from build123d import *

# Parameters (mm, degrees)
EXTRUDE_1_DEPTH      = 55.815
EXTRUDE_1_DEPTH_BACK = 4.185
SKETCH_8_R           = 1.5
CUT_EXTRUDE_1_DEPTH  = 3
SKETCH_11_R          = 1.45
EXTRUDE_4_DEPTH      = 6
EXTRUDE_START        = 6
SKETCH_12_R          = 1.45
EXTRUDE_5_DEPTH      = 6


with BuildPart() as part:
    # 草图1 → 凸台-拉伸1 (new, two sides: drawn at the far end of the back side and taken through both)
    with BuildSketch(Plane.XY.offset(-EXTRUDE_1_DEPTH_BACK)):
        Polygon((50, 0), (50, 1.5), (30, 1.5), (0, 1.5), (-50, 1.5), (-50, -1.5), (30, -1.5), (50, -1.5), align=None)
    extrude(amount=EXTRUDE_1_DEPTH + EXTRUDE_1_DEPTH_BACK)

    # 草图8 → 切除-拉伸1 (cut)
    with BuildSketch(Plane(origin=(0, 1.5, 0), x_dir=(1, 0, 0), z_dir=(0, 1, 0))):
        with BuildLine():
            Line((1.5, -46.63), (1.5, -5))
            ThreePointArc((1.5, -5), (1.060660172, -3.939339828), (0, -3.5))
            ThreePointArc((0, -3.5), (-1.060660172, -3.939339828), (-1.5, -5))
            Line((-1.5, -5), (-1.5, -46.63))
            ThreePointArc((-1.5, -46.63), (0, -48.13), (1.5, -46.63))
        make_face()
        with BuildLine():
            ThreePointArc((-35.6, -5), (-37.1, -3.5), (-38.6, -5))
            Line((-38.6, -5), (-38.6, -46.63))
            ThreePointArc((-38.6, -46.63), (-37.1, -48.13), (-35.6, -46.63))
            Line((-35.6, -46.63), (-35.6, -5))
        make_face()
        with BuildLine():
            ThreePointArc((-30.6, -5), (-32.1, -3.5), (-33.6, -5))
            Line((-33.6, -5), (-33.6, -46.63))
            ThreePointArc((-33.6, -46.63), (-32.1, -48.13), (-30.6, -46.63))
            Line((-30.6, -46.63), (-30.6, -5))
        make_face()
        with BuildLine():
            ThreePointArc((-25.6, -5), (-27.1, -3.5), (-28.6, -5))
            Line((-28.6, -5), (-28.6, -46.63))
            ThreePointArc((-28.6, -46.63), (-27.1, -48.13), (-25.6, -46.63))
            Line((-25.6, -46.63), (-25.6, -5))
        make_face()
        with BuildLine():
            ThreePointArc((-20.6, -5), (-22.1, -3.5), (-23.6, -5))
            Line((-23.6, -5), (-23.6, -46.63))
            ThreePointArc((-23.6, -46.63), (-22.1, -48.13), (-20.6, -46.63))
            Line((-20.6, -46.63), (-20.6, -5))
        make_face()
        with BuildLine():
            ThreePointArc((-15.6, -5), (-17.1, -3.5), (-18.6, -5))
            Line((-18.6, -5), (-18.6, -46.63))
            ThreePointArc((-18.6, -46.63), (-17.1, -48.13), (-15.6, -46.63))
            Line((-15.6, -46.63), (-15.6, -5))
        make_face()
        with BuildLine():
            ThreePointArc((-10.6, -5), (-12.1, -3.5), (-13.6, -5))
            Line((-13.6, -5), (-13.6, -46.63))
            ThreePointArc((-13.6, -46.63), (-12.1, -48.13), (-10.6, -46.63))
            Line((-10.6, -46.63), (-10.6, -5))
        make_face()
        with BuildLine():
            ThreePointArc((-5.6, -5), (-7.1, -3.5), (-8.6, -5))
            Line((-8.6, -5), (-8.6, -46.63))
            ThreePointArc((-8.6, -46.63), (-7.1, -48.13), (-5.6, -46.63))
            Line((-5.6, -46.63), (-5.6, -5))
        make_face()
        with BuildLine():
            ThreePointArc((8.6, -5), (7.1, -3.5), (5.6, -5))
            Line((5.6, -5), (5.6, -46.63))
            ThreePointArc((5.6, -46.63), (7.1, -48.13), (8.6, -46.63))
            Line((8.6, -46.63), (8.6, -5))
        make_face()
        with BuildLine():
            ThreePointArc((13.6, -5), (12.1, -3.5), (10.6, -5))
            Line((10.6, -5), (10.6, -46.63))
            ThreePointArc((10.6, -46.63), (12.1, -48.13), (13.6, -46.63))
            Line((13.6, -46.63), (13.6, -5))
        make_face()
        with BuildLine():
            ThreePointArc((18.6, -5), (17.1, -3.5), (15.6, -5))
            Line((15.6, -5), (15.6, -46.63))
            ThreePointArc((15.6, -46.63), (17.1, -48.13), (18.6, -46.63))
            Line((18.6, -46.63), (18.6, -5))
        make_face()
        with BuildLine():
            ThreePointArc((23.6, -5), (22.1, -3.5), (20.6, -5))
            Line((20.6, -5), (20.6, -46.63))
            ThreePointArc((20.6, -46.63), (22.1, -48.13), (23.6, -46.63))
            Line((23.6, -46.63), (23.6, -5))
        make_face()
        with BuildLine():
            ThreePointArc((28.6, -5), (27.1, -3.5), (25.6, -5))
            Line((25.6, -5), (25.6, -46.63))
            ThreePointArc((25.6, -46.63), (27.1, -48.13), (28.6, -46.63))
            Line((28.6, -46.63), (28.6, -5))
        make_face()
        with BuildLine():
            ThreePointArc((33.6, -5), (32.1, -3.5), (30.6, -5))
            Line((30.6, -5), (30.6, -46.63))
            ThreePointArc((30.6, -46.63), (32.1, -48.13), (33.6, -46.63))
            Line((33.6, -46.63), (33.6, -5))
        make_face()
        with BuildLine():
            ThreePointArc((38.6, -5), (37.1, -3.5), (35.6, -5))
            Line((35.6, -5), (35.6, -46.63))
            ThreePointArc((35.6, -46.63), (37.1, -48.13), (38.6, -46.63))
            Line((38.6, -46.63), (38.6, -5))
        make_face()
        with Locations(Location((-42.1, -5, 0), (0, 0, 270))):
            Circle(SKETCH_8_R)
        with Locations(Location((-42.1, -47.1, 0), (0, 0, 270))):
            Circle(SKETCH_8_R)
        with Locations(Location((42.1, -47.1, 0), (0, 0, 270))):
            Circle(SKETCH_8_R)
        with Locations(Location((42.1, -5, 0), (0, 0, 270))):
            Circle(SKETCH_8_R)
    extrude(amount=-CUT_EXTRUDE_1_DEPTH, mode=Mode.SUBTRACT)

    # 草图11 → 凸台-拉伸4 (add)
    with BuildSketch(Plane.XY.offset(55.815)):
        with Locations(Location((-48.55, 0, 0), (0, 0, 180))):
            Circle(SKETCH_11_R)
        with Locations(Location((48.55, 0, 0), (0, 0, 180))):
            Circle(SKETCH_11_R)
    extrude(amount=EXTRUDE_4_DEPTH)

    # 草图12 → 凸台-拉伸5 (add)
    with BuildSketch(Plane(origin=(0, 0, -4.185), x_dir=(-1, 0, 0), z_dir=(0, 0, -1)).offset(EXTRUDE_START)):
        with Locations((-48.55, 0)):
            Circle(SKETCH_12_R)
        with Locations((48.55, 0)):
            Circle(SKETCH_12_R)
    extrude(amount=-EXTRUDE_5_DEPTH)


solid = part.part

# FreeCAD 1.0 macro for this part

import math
import FreeCAD as App
import Part
import Sketcher
from FreeCAD import Vector
Q = App.Units.Quantity

doc = App.newDocument("Part")
body = doc.addObject("PartDesign::Body", "Body")

# Sketch on XY plane
sketch1 = body.newObject("Sketcher::SketchObject", "Sketch")
sketch1.AttachmentSupport = (doc.getObject("XY_Plane"), [""])
sketch1.MapMode = "FlatFace"
sketch1.addGeometry([
    Part.LineSegment(Vector(50, 1.5, 0), Vector(-50, 1.5, 0)),
    Part.LineSegment(Vector(-50, 1.5, 0), Vector(-50, -1.5, 0)),
    Part.LineSegment(Vector(-50, -1.5, 0), Vector(50, -1.5, 0)),
    Part.LineSegment(Vector(50, -1.5, 0), Vector(50, 1.5, 0)),
], False)
sketch1.addConstraint([
    Sketcher.Constraint("Coincident", 0, 2, 1, 1),
    Sketcher.Constraint("Coincident", 1, 2, 2, 1),
    Sketcher.Constraint("Coincident", 2, 2, 3, 1),
    Sketcher.Constraint("Coincident", 3, 2, 0, 1),
    Sketcher.Constraint("Horizontal", 0),
    Sketcher.Constraint("Vertical", 1),
    Sketcher.Constraint("Horizontal", 2),
    Sketcher.Constraint("Vertical", 3),
    Sketcher.Constraint("Symmetric", 0, 2, 2, 2, -1, 1),
    Sketcher.Constraint("DistanceX", 0, 2, 0, 1, Q("100 mm")),
    Sketcher.Constraint("DistanceY", 1, 2, 1, 1, Q("3 mm")),
])
pad1 = body.newObject("PartDesign::Pad", "Pad")
pad1.Profile = sketch1
pad1.Type = "TwoLengths"
pad1.Length = 55.815
pad1.Length2 = 4.185

# Sketch on XZ plane
sketch2 = body.newObject("Sketcher::SketchObject", "Sketch001")
sketch2.AttachmentSupport = (doc.getObject("XZ_Plane"), [""])
sketch2.MapMode = "FlatFace"
sketch2.AttachmentOffset = App.Placement(Vector(0, 0, -1.5), App.Rotation())
sketch2.addGeometry([
    Part.LineSegment(Vector(1.5, 46.6, 0), Vector(1.5, 5, 0)),  # 0
    Part.ArcOfCircle(Part.Circle(Vector(0, 5, 0), Vector(0, 0, 1), 1.5), math.radians(-90), math.radians(0)),  # 1
    Part.ArcOfCircle(Part.Circle(Vector(0, 5, 0), Vector(0, 0, 1), 1.5), math.radians(180), math.radians(270)),  # 2
    Part.LineSegment(Vector(-1.5, 5, 0), Vector(-1.5, 46.6, 0)),  # 3
    Part.ArcOfCircle(Part.Circle(Vector(0, 46.6, 0), Vector(0, 0, 1), 1.5), math.radians(0), math.radians(180)),  # 4
    Part.ArcOfCircle(Part.Circle(Vector(-37.1, 5, 0), Vector(0, 0, 1), 1.5), math.radians(180), math.radians(360)),  # 5
    Part.LineSegment(Vector(-38.6, 5, 0), Vector(-38.6, 46.6, 0)),  # 6
    Part.ArcOfCircle(Part.Circle(Vector(-37.1, 46.6, 0), Vector(0, 0, 1), 1.5), math.radians(0), math.radians(180)),  # 7
    Part.LineSegment(Vector(-35.6, 46.6, 0), Vector(-35.6, 5, 0)),  # 8
    Part.ArcOfCircle(Part.Circle(Vector(-32.1, 5, 0), Vector(0, 0, 1), 1.5), math.radians(180), math.radians(360)),  # 9
    Part.LineSegment(Vector(-33.6, 5, 0), Vector(-33.6, 46.6, 0)),  # 10
    Part.ArcOfCircle(Part.Circle(Vector(-32.1, 46.6, 0), Vector(0, 0, 1), 1.5), math.radians(0), math.radians(180)),  # 11
    Part.LineSegment(Vector(-30.6, 46.6, 0), Vector(-30.6, 5, 0)),  # 12
    Part.ArcOfCircle(Part.Circle(Vector(-27.1, 5, 0), Vector(0, 0, 1), 1.5), math.radians(180), math.radians(360)),  # 13
    Part.LineSegment(Vector(-28.6, 5, 0), Vector(-28.6, 46.6, 0)),  # 14
    Part.ArcOfCircle(Part.Circle(Vector(-27.1, 46.6, 0), Vector(0, 0, 1), 1.5), math.radians(0), math.radians(180)),  # 15
    Part.LineSegment(Vector(-25.6, 46.6, 0), Vector(-25.6, 5, 0)),  # 16
    Part.ArcOfCircle(Part.Circle(Vector(-22.1, 5, 0), Vector(0, 0, 1), 1.5), math.radians(180), math.radians(360)),  # 17
    Part.LineSegment(Vector(-23.6, 5, 0), Vector(-23.6, 46.6, 0)),  # 18
    Part.ArcOfCircle(Part.Circle(Vector(-22.1, 46.6, 0), Vector(0, 0, 1), 1.5), math.radians(0), math.radians(180)),  # 19
    Part.LineSegment(Vector(-20.6, 46.6, 0), Vector(-20.6, 5, 0)),  # 20
    Part.ArcOfCircle(Part.Circle(Vector(-17.1, 5, 0), Vector(0, 0, 1), 1.5), math.radians(180), math.radians(360)),  # 21
    Part.LineSegment(Vector(-18.6, 5, 0), Vector(-18.6, 46.6, 0)),  # 22
    Part.ArcOfCircle(Part.Circle(Vector(-17.1, 46.6, 0), Vector(0, 0, 1), 1.5), math.radians(0), math.radians(180)),  # 23
    Part.LineSegment(Vector(-15.6, 46.6, 0), Vector(-15.6, 5, 0)),  # 24
    Part.ArcOfCircle(Part.Circle(Vector(-12.1, 5, 0), Vector(0, 0, 1), 1.5), math.radians(180), math.radians(360)),  # 25
    Part.LineSegment(Vector(-13.6, 5, 0), Vector(-13.6, 46.6, 0)),  # 26
    Part.ArcOfCircle(Part.Circle(Vector(-12.1, 46.6, 0), Vector(0, 0, 1), 1.5), math.radians(0), math.radians(180)),  # 27
    Part.LineSegment(Vector(-10.6, 46.6, 0), Vector(-10.6, 5, 0)),  # 28
    Part.ArcOfCircle(Part.Circle(Vector(-7.1, 5, 0), Vector(0, 0, 1), 1.5), math.radians(180), math.radians(360)),  # 29
    Part.LineSegment(Vector(-8.6, 5, 0), Vector(-8.6, 46.6, 0)),  # 30
    Part.ArcOfCircle(Part.Circle(Vector(-7.1, 46.6, 0), Vector(0, 0, 1), 1.5), math.radians(0), math.radians(180)),  # 31
    Part.LineSegment(Vector(-5.6, 46.6, 0), Vector(-5.6, 5, 0)),  # 32
    Part.ArcOfCircle(Part.Circle(Vector(7.1, 5, 0), Vector(0, 0, 1), 1.5), math.radians(180), math.radians(360)),  # 33
    Part.LineSegment(Vector(5.6, 5, 0), Vector(5.6, 46.6, 0)),  # 34
    Part.ArcOfCircle(Part.Circle(Vector(7.1, 46.6, 0), Vector(0, 0, 1), 1.5), math.radians(0), math.radians(180)),  # 35
    Part.LineSegment(Vector(8.6, 46.6, 0), Vector(8.6, 5, 0)),  # 36
    Part.ArcOfCircle(Part.Circle(Vector(12.1, 5, 0), Vector(0, 0, 1), 1.5), math.radians(180), math.radians(360)),  # 37
    Part.LineSegment(Vector(10.6, 5, 0), Vector(10.6, 46.6, 0)),  # 38
    Part.ArcOfCircle(Part.Circle(Vector(12.1, 46.6, 0), Vector(0, 0, 1), 1.5), math.radians(0), math.radians(180)),  # 39
    Part.LineSegment(Vector(13.6, 46.6, 0), Vector(13.6, 5, 0)),  # 40
    Part.ArcOfCircle(Part.Circle(Vector(17.1, 5, 0), Vector(0, 0, 1), 1.5), math.radians(180), math.radians(360)),  # 41
    Part.LineSegment(Vector(15.6, 5, 0), Vector(15.6, 46.6, 0)),  # 42
    Part.ArcOfCircle(Part.Circle(Vector(17.1, 46.6, 0), Vector(0, 0, 1), 1.5), math.radians(0), math.radians(180)),  # 43
    Part.LineSegment(Vector(18.6, 46.6, 0), Vector(18.6, 5, 0)),  # 44
    Part.ArcOfCircle(Part.Circle(Vector(22.1, 5, 0), Vector(0, 0, 1), 1.5), math.radians(180), math.radians(360)),  # 45
    Part.LineSegment(Vector(20.6, 5, 0), Vector(20.6, 46.6, 0)),  # 46
    Part.ArcOfCircle(Part.Circle(Vector(22.1, 46.6, 0), Vector(0, 0, 1), 1.5), math.radians(0), math.radians(180)),  # 47
    Part.LineSegment(Vector(23.6, 46.6, 0), Vector(23.6, 5, 0)),  # 48
    Part.ArcOfCircle(Part.Circle(Vector(27.1, 5, 0), Vector(0, 0, 1), 1.5), math.radians(180), math.radians(360)),  # 49
    Part.LineSegment(Vector(25.6, 5, 0), Vector(25.6, 46.6, 0)),  # 50
    Part.ArcOfCircle(Part.Circle(Vector(27.1, 46.6, 0), Vector(0, 0, 1), 1.5), math.radians(0), math.radians(180)),  # 51
    Part.LineSegment(Vector(28.6, 46.6, 0), Vector(28.6, 5, 0)),  # 52
    Part.ArcOfCircle(Part.Circle(Vector(32.1, 5, 0), Vector(0, 0, 1), 1.5), math.radians(180), math.radians(360)),  # 53
    Part.LineSegment(Vector(30.6, 5, 0), Vector(30.6, 46.6, 0)),  # 54
    Part.ArcOfCircle(Part.Circle(Vector(32.1, 46.6, 0), Vector(0, 0, 1), 1.5), math.radians(0), math.radians(180)),  # 55
    Part.LineSegment(Vector(33.6, 46.6, 0), Vector(33.6, 5, 0)),  # 56
    Part.ArcOfCircle(Part.Circle(Vector(37.1, 5, 0), Vector(0, 0, 1), 1.5), math.radians(180), math.radians(360)),  # 57
    Part.LineSegment(Vector(35.6, 5, 0), Vector(35.6, 46.6, 0)),  # 58
    Part.ArcOfCircle(Part.Circle(Vector(37.1, 46.6, 0), Vector(0, 0, 1), 1.5), math.radians(0), math.radians(180)),  # 59
    Part.LineSegment(Vector(38.6, 46.6, 0), Vector(38.6, 5, 0)),  # 60
    Part.Circle(Vector(-42.1, 5, 0), Vector(0, 0, 1), 1.5),  # 61
    Part.Circle(Vector(-42.1, 47.1, 0), Vector(0, 0, 1), 1.5),  # 62
    Part.Circle(Vector(42.1, 47.1, 0), Vector(0, 0, 1), 1.5),  # 63
    Part.Circle(Vector(42.1, 5, 0), Vector(0, 0, 1), 1.5),  # 64
], False)
sketch2.addConstraint([
    Sketcher.Constraint("Tangent", 0, 2, 1, 2),
    Sketcher.Constraint("Tangent", 1, 1, 2, 2),
    Sketcher.Constraint("Tangent", 2, 1, 3, 1),
    Sketcher.Constraint("Tangent", 3, 2, 4, 2),
    Sketcher.Constraint("Tangent", 4, 1, 0, 1),
    Sketcher.Constraint("Tangent", 5, 1, 6, 1),
    Sketcher.Constraint("Tangent", 6, 2, 7, 2),
    Sketcher.Constraint("Tangent", 7, 1, 8, 1),
    Sketcher.Constraint("Tangent", 8, 2, 5, 2),
    Sketcher.Constraint("Tangent", 9, 1, 10, 1),
    Sketcher.Constraint("Tangent", 10, 2, 11, 2),
    Sketcher.Constraint("Tangent", 11, 1, 12, 1),
    Sketcher.Constraint("Tangent", 12, 2, 9, 2),
    Sketcher.Constraint("Tangent", 13, 1, 14, 1),
    Sketcher.Constraint("Tangent", 14, 2, 15, 2),
    Sketcher.Constraint("Tangent", 15, 1, 16, 1),
    Sketcher.Constraint("Tangent", 16, 2, 13, 2),
    Sketcher.Constraint("Tangent", 17, 1, 18, 1),
    Sketcher.Constraint("Tangent", 18, 2, 19, 2),
    Sketcher.Constraint("Tangent", 19, 1, 20, 1),
    Sketcher.Constraint("Tangent", 20, 2, 17, 2),
    Sketcher.Constraint("Tangent", 21, 1, 22, 1),
    Sketcher.Constraint("Tangent", 22, 2, 23, 2),
    Sketcher.Constraint("Tangent", 23, 1, 24, 1),
    Sketcher.Constraint("Tangent", 24, 2, 21, 2),
    Sketcher.Constraint("Tangent", 25, 1, 26, 1),
    Sketcher.Constraint("Tangent", 26, 2, 27, 2),
    Sketcher.Constraint("Tangent", 27, 1, 28, 1),
    Sketcher.Constraint("Tangent", 28, 2, 25, 2),
    Sketcher.Constraint("Tangent", 29, 1, 30, 1),
    Sketcher.Constraint("Tangent", 30, 2, 31, 2),
    Sketcher.Constraint("Tangent", 31, 1, 32, 1),
    Sketcher.Constraint("Tangent", 32, 2, 29, 2),
    Sketcher.Constraint("Tangent", 33, 1, 34, 1),
    Sketcher.Constraint("Tangent", 34, 2, 35, 2),
    Sketcher.Constraint("Tangent", 35, 1, 36, 1),
    Sketcher.Constraint("Tangent", 36, 2, 33, 2),
    Sketcher.Constraint("Tangent", 37, 1, 38, 1),
    Sketcher.Constraint("Tangent", 38, 2, 39, 2),
    Sketcher.Constraint("Tangent", 39, 1, 40, 1),
    Sketcher.Constraint("Tangent", 40, 2, 37, 2),
    Sketcher.Constraint("Tangent", 41, 1, 42, 1),
    Sketcher.Constraint("Tangent", 42, 2, 43, 2),
    Sketcher.Constraint("Tangent", 43, 1, 44, 1),
    Sketcher.Constraint("Tangent", 44, 2, 41, 2),
    Sketcher.Constraint("Tangent", 45, 1, 46, 1),
    Sketcher.Constraint("Tangent", 46, 2, 47, 2),
    Sketcher.Constraint("Tangent", 47, 1, 48, 1),
    Sketcher.Constraint("Tangent", 48, 2, 45, 2),
    Sketcher.Constraint("Tangent", 49, 1, 50, 1),
    Sketcher.Constraint("Tangent", 50, 2, 51, 2),
    Sketcher.Constraint("Tangent", 51, 1, 52, 1),
    Sketcher.Constraint("Tangent", 52, 2, 49, 2),
    Sketcher.Constraint("Tangent", 53, 1, 54, 1),
    Sketcher.Constraint("Tangent", 54, 2, 55, 2),
    Sketcher.Constraint("Tangent", 55, 1, 56, 1),
    Sketcher.Constraint("Tangent", 56, 2, 53, 2),
    Sketcher.Constraint("Tangent", 57, 1, 58, 1),
    Sketcher.Constraint("Tangent", 58, 2, 59, 2),
    Sketcher.Constraint("Tangent", 59, 1, 60, 1),
    Sketcher.Constraint("Tangent", 60, 2, 57, 2),
    Sketcher.Constraint("Vertical", 0),
    Sketcher.Constraint("Vertical", 3),
    Sketcher.Constraint("Vertical", 6),
    Sketcher.Constraint("Vertical", 8),
    Sketcher.Constraint("Vertical", 10),
    Sketcher.Constraint("Vertical", 12),
    Sketcher.Constraint("Vertical", 14),
    Sketcher.Constraint("Vertical", 16),
    Sketcher.Constraint("Vertical", 18),
    Sketcher.Constraint("Vertical", 20),
    Sketcher.Constraint("Vertical", 22),
    Sketcher.Constraint("Vertical", 24),
    Sketcher.Constraint("Vertical", 26),
    Sketcher.Constraint("Vertical", 28),
    Sketcher.Constraint("Vertical", 30),
    Sketcher.Constraint("Vertical", 32),
    Sketcher.Constraint("Vertical", 34),
    Sketcher.Constraint("Vertical", 36),
    Sketcher.Constraint("Vertical", 38),
    Sketcher.Constraint("Vertical", 40),
    Sketcher.Constraint("Vertical", 42),
    Sketcher.Constraint("Vertical", 44),
    Sketcher.Constraint("Vertical", 46),
    Sketcher.Constraint("Vertical", 48),
    Sketcher.Constraint("Vertical", 50),
    Sketcher.Constraint("Vertical", 52),
    Sketcher.Constraint("Vertical", 54),
    Sketcher.Constraint("Vertical", 56),
    Sketcher.Constraint("Vertical", 58),
    Sketcher.Constraint("Vertical", 60),
    Sketcher.Constraint("Equal", 1, 2),
    Sketcher.Constraint("Equal", 4, 5),
    Sketcher.Constraint("Equal", 7, 9),
    Sketcher.Constraint("Equal", 11, 13),
    Sketcher.Constraint("Equal", 15, 17),
    Sketcher.Constraint("Equal", 19, 21),
    Sketcher.Constraint("Equal", 23, 25),
    Sketcher.Constraint("Equal", 27, 29),
    Sketcher.Constraint("Equal", 31, 33),
    Sketcher.Constraint("Equal", 35, 37),
    Sketcher.Constraint("Equal", 39, 41),
    Sketcher.Constraint("Equal", 43, 45),
    Sketcher.Constraint("Equal", 47, 49),
    Sketcher.Constraint("Equal", 51, 53),
    Sketcher.Constraint("Equal", 55, 57),
    Sketcher.Constraint("Equal", 59, 61),
    Sketcher.Constraint("Equal", 61, 62),
    Sketcher.Constraint("Equal", 62, 63),
    Sketcher.Constraint("Equal", 63, 64),
    Sketcher.Constraint("Symmetric", 29, 3, 33, 3, -2),
    Sketcher.Constraint("Symmetric", 25, 3, 37, 3, -2),
    Sketcher.Constraint("Symmetric", 21, 3, 41, 3, -2),
    Sketcher.Constraint("Symmetric", 17, 3, 45, 3, -2),
    Sketcher.Constraint("Symmetric", 13, 3, 49, 3, -2),
    Sketcher.Constraint("Symmetric", 9, 3, 53, 3, -2),
    Sketcher.Constraint("Symmetric", 5, 3, 57, 3, -2),
    Sketcher.Constraint("Symmetric", 62, 3, 63, 3, -2),
    Sketcher.Constraint("Symmetric", 61, 3, 64, 3, -2),
    Sketcher.Constraint("PointOnObject", 1, 3, -2),
    Sketcher.Constraint("PointOnObject", 1, 1, -2),
    Sketcher.Constraint("Horizontal", 2, 3, 5, 3),
    Sketcher.Constraint("Horizontal", 4, 3, 7, 3),
    Sketcher.Constraint("Horizontal", 5, 3, 9, 3),
    Sketcher.Constraint("Horizontal", 7, 3, 11, 3),
    Sketcher.Constraint("Horizontal", 9, 3, 13, 3),
    Sketcher.Constraint("Horizontal", 11, 3, 15, 3),
    Sketcher.Constraint("Horizontal", 13, 3, 17, 3),
    Sketcher.Constraint("Horizontal", 15, 3, 19, 3),
    Sketcher.Constraint("Horizontal", 17, 3, 21, 3),
    Sketcher.Constraint("Horizontal", 19, 3, 23, 3),
    Sketcher.Constraint("Horizontal", 21, 3, 25, 3),
    Sketcher.Constraint("Horizontal", 23, 3, 27, 3),
    Sketcher.Constraint("Horizontal", 25, 3, 29, 3),
    Sketcher.Constraint("Horizontal", 27, 3, 31, 3),
    Sketcher.Constraint("Horizontal", 31, 3, 35, 3),
    Sketcher.Constraint("Horizontal", 35, 3, 39, 3),
    Sketcher.Constraint("Horizontal", 39, 3, 43, 3),
    Sketcher.Constraint("Horizontal", 43, 3, 47, 3),
    Sketcher.Constraint("Horizontal", 47, 3, 51, 3),
    Sketcher.Constraint("Horizontal", 51, 3, 55, 3),
    Sketcher.Constraint("Horizontal", 55, 3, 59, 3),
    Sketcher.Constraint("Horizontal", 57, 3, 61, 3),
    Sketcher.Constraint("Vertical", 61, 3, 62, 3),
    Sketcher.Constraint("Diameter", 61, Q("3 mm")),
    Sketcher.Constraint("DistanceY", -1, 1, 1, 3, Q("5 mm")),
    Sketcher.Constraint("DistanceY", 0, 2, 0, 1, Q("41.63 mm")),
    Sketcher.Constraint("DistanceX", 5, 3, -1, 1, Q("37.1 mm")),
    Sketcher.Constraint("DistanceX", 9, 3, -1, 1, Q("32.1 mm")),
    Sketcher.Constraint("DistanceX", 13, 3, -1, 1, Q("27.1 mm")),
    Sketcher.Constraint("DistanceX", 17, 3, -1, 1, Q("22.1 mm")),
    Sketcher.Constraint("DistanceX", 21, 3, -1, 1, Q("17.1 mm")),
    Sketcher.Constraint("DistanceX", 25, 3, -1, 1, Q("12.1 mm")),
    Sketcher.Constraint("DistanceX", 29, 3, -1, 1, Q("7.1 mm")),
    Sketcher.Constraint("DistanceX", 61, 3, -1, 1, Q("42.1 mm")),
    Sketcher.Constraint("DistanceY", -1, 1, 62, 3, Q("47.1 mm")),
])
pocket1 = body.newObject("PartDesign::Pocket", "Pocket")
pocket1.Profile = sketch2
pocket1.Length = 3
pocket1.Reversed = True

# Sketch on XY plane
sketch3 = body.newObject("Sketcher::SketchObject", "Sketch002")
sketch3.AttachmentSupport = (doc.getObject("XY_Plane"), [""])
sketch3.MapMode = "FlatFace"
sketch3.AttachmentOffset = App.Placement(Vector(0, 0, 55.815), App.Rotation())
sketch3.addGeometry([
    Part.Circle(Vector(-48.5, 0, 0), Vector(0, 0, 1), 1.4),
    Part.Circle(Vector(48.5, 0, 0), Vector(0, 0, 1), 1.4),
], False)
sketch3.addConstraint([
    Sketcher.Constraint("Equal", 0, 1),
    Sketcher.Constraint("Symmetric", 0, 3, 1, 3, -1, 1),
    Sketcher.Constraint("PointOnObject", 0, 3, -1),
    Sketcher.Constraint("Diameter", 0, Q("2.9 mm")),
    Sketcher.Constraint("DistanceX", 0, 3, 1, 3, Q("97.1 mm")),
])
pad2 = body.newObject("PartDesign::Pad", "Pad001")
pad2.Profile = sketch3
pad2.Length = 6

# Sketch on XY plane
sketch4 = body.newObject("Sketcher::SketchObject", "Sketch003")
sketch4.AttachmentSupport = (doc.getObject("XY_Plane"), [""])
sketch4.MapMode = "FlatFace"
sketch4.AttachmentOffset = App.Placement(Vector(0, 0, -10.185), App.Rotation())
sketch4.addGeometry([
    Part.Circle(Vector(48.5, 0, 0), Vector(0, 0, 1), 1.4),
    Part.Circle(Vector(-48.5, 0, 0), Vector(0, 0, 1), 1.4),
], False)
sketch4.addConstraint([
    Sketcher.Constraint("Equal", 0, 1),
    Sketcher.Constraint("Symmetric", 0, 3, 1, 3, -1, 1),
    Sketcher.Constraint("PointOnObject", 0, 3, -1),
    Sketcher.Constraint("Diameter", 0, Q("2.9 mm")),
    Sketcher.Constraint("DistanceX", 1, 3, 0, 3, Q("97.1 mm")),
])
pad3 = body.newObject("PartDesign::Pad", "Pad002")
pad3.Profile = sketch4
pad3.Length = 6

doc.recompute()
